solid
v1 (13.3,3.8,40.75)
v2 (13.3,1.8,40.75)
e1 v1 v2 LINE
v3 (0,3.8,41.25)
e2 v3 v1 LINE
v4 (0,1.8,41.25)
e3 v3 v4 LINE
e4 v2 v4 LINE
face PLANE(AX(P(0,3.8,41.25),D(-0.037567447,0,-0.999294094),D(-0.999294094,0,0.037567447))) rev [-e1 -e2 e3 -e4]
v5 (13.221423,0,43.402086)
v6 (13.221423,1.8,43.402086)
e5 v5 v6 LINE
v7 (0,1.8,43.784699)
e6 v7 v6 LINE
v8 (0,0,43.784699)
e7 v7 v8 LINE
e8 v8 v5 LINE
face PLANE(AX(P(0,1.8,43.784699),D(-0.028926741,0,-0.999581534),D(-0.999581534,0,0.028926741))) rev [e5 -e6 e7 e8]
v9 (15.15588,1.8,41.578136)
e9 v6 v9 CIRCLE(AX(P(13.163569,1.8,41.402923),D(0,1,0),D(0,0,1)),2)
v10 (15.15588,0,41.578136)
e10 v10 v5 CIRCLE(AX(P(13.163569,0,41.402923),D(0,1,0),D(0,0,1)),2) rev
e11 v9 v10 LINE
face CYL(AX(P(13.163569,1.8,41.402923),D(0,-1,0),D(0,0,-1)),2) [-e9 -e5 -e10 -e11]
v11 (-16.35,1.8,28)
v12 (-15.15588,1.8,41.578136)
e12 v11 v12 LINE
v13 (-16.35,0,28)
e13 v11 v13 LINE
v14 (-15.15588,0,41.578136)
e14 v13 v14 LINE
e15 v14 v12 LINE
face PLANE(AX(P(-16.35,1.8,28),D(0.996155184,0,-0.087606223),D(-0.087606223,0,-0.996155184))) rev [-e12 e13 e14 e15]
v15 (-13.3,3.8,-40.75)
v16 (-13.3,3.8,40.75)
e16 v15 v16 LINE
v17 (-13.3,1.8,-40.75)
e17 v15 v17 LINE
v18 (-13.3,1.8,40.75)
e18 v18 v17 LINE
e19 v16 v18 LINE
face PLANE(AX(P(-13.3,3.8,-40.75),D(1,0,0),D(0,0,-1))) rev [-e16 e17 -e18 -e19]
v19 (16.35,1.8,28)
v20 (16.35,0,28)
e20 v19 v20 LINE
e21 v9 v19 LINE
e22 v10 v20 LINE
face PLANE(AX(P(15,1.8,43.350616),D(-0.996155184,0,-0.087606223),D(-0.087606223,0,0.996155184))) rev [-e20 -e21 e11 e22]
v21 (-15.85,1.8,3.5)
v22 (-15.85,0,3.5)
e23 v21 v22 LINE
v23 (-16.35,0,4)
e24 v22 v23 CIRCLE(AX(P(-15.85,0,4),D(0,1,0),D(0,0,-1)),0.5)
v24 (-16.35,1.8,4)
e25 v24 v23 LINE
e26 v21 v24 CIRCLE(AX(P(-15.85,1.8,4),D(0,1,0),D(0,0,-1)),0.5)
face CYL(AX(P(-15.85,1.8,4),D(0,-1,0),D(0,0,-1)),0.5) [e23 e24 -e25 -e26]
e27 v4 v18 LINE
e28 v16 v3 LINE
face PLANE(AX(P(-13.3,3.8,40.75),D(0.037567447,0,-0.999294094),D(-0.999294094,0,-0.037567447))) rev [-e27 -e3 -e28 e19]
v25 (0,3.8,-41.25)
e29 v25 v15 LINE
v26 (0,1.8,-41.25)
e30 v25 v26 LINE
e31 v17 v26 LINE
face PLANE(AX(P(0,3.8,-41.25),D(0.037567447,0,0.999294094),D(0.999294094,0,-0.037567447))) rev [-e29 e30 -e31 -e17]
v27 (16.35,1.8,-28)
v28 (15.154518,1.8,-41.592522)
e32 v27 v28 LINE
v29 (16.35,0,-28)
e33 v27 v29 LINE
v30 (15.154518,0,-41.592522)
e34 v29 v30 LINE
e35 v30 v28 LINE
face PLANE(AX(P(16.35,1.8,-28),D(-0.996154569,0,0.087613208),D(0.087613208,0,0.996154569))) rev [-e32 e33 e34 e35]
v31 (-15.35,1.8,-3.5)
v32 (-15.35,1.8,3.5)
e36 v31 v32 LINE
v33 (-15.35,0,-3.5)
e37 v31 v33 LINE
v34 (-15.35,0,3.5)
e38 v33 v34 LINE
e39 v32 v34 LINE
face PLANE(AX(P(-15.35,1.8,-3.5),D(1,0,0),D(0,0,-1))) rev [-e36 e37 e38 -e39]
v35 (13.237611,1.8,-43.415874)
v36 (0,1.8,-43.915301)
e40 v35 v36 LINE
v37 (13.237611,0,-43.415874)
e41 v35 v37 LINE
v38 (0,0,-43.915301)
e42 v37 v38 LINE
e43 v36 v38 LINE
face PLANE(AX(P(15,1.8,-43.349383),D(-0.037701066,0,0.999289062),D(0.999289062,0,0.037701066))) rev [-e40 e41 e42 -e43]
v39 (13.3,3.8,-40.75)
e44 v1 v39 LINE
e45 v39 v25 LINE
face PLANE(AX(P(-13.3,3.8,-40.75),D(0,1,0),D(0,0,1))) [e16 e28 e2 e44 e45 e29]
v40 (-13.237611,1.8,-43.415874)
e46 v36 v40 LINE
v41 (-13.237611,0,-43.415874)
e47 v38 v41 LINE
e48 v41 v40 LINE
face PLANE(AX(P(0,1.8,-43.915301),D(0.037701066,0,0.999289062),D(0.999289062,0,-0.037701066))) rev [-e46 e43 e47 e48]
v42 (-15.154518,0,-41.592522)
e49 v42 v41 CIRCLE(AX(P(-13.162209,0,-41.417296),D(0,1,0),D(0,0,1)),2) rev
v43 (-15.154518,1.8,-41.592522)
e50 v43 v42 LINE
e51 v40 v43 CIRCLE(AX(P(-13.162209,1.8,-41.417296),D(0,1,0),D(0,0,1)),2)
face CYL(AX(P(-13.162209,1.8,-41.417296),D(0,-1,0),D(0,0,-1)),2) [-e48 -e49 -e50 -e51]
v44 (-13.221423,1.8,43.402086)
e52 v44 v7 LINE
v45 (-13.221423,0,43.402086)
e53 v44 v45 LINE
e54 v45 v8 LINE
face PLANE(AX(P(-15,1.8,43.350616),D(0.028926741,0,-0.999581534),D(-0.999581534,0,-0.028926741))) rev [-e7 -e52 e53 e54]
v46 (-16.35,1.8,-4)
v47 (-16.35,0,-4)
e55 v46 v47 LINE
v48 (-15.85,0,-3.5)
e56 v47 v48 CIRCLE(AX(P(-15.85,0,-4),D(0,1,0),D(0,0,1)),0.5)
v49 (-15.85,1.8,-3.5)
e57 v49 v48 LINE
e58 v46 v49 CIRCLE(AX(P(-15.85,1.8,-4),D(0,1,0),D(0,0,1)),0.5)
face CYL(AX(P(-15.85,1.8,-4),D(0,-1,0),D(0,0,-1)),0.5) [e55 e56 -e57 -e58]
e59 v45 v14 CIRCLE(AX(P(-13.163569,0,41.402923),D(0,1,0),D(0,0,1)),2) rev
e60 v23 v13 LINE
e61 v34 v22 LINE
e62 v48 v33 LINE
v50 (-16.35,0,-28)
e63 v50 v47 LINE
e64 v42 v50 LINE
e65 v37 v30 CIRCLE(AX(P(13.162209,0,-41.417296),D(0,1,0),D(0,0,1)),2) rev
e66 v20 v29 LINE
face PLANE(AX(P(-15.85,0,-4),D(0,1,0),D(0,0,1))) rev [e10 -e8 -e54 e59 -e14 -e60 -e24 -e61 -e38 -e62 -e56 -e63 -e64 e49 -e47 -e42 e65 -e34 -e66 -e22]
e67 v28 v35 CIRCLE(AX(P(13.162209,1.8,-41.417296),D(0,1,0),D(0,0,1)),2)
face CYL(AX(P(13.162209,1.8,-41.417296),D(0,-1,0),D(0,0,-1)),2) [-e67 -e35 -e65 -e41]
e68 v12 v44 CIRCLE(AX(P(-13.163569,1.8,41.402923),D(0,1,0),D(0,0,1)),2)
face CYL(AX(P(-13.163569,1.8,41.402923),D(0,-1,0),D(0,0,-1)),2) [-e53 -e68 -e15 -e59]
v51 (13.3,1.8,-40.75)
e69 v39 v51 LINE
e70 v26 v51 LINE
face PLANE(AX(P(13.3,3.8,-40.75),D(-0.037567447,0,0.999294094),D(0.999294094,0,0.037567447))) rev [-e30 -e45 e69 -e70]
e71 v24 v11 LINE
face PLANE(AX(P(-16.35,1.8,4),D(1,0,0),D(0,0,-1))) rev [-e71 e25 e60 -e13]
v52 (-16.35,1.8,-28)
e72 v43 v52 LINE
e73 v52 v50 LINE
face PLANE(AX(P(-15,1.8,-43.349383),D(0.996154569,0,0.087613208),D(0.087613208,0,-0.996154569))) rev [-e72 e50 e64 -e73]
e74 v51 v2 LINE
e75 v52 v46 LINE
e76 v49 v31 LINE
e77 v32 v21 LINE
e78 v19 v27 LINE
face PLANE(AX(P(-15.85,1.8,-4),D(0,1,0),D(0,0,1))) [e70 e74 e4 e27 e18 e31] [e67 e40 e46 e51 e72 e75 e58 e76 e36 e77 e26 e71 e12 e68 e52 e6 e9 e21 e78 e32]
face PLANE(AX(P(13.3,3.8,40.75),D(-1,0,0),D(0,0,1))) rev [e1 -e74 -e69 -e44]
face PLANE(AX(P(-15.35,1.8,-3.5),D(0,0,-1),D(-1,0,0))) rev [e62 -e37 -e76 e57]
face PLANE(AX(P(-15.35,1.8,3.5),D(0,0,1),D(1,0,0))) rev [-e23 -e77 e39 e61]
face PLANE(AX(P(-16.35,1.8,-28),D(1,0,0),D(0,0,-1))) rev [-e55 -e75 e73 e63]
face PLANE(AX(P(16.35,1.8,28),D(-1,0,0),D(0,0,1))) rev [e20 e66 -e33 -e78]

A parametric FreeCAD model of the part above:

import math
import FreeCAD as App
import Part
import Sketcher


def edges_at(feature, points):
    """Names of the edges that pass closest to the given points."""
    edges = feature.Shape.Edges
    near = lambda p: min(range(len(edges)), key=lambda i: edges[i].distToShape(Part.Vertex(*p))[0])
    return sorted({f"Edge{near(p) + 1}" for p in points})

doc = App.newDocument("Part")
body = doc.addObject("PartDesign::Body", "Body")

# Sketch on XZ plane
sketch1 = body.newObject("Sketcher::SketchObject", "Sketch")
sketch1.AttachmentSupport = (doc.getObject("XZ_Plane"), [""])
sketch1.MapMode = "FlatFace"
sketch1.addGeometry([
    Part.LineSegment(App.Vector(-15, -43.349383, 0), App.Vector(-16.35, -28, 0)),  # 0
    Part.LineSegment(App.Vector(-16.35, -28, 0), App.Vector(-16.35, -4, 0)),  # 1
    Part.ArcOfCircle(Part.Circle(App.Vector(-15.85, -4, 0), App.Vector(0, 0, 1), 0.5), math.radians(90), math.radians(180)),  # 2
    Part.LineSegment(App.Vector(-15.85, -3.5, 0), App.Vector(-15.35, -3.5, 0)),  # 3
    Part.LineSegment(App.Vector(-15.35, -3.5, 0), App.Vector(-15.35, 3.5, 0)),  # 4
    Part.LineSegment(App.Vector(-15.35, 3.5, 0), App.Vector(-15.85, 3.5, 0)),  # 5
    Part.ArcOfCircle(Part.Circle(App.Vector(-15.85, 4, 0), App.Vector(0, 0, 1), 0.5), math.radians(180), math.radians(270)),  # 6
    Part.LineSegment(App.Vector(-16.35, 4, 0), App.Vector(-16.35, 28, 0)),  # 7
    Part.LineSegment(App.Vector(-16.35, 28, 0), App.Vector(-15, 43.350616, 0)),  # 8
    Part.LineSegment(App.Vector(-15, 43.350616, 0), App.Vector(0, 43.784699, 0)),  # 9
    Part.LineSegment(App.Vector(0, 43.784699, 0), App.Vector(15, 43.350616, 0)),  # 10
    Part.LineSegment(App.Vector(15, 43.350616, 0), App.Vector(16.35, 28, 0)),  # 11
    Part.LineSegment(App.Vector(16.35, 28, 0), App.Vector(16.35, -28, 0)),  # 12
    Part.LineSegment(App.Vector(16.35, -28, 0), App.Vector(15, -43.349383, 0)),  # 13
    Part.LineSegment(App.Vector(15, -43.349383, 0), App.Vector(0, -43.915301, 0)),  # 14
    Part.LineSegment(App.Vector(0, -43.915301, 0), App.Vector(-15, -43.349383, 0)),  # 15
], False)
sketch1.addConstraint([
    Sketcher.Constraint("Coincident", 0, 2, 1, 1),
    Sketcher.Constraint("Tangent", 1, 2, 2, 2),
    Sketcher.Constraint("Tangent", 2, 1, 3, 1),
    Sketcher.Constraint("Coincident", 3, 2, 4, 1),
    Sketcher.Constraint("Coincident", 4, 2, 5, 1),
    Sketcher.Constraint("Tangent", 5, 2, 6, 2),
    Sketcher.Constraint("Tangent", 6, 1, 7, 1),
    Sketcher.Constraint("Coincident", 7, 2, 8, 1),
    Sketcher.Constraint("Coincident", 8, 2, 9, 1),
    Sketcher.Constraint("Coincident", 9, 2, 10, 1),
    Sketcher.Constraint("Coincident", 10, 2, 11, 1),
    Sketcher.Constraint("Coincident", 11, 2, 12, 1),
    Sketcher.Constraint("Coincident", 12, 2, 13, 1),
    Sketcher.Constraint("Coincident", 13, 2, 14, 1),
    Sketcher.Constraint("Coincident", 14, 2, 15, 1),
    Sketcher.Constraint("Coincident", 15, 2, 0, 1),
    Sketcher.Constraint("Vertical", 1),
    Sketcher.Constraint("Horizontal", 3),
    Sketcher.Constraint("Vertical", 4),
    Sketcher.Constraint("Horizontal", 5),
    Sketcher.Constraint("Vertical", 7),
    Sketcher.Constraint("Vertical", 12),
    Sketcher.Constraint("Equal", 2, 6),
    Sketcher.Constraint("Symmetric", 0, 2, 11, 2, -1, 1),
    Sketcher.Constraint("Symmetric", 7, 2, 12, 2, -1, 1),
    Sketcher.Constraint("Symmetric", 8, 2, 10, 2, -2),
    Sketcher.Constraint("Symmetric", 13, 2, 15, 2, -2),
    Sketcher.Constraint("PointOnObject", 9, 2, -2),
    Sketcher.Constraint("PointOnObject", 14, 2, -2),
    Sketcher.Constraint("Horizontal", 7, 2, 11, 2),
    Sketcher.Constraint("Vertical", 10, 2, 13, 2),
    Sketcher.Constraint("Equal", 1, 7),
    Sketcher.Constraint("Radius", 2, 0.5),
    Sketcher.Constraint("DistanceY", 1, 1, 1, 2, 24.0),
    Sketcher.Constraint("DistanceY", 4, 1, 4, 2, 7.0),
    Sketcher.Constraint("DistanceX", 3, 1, 3, 2, 0.5),
    Sketcher.Constraint("DistanceX", 8, 2, -1, 1, 15.0),
    Sketcher.Constraint("DistanceX", 7, 2, 11, 2, 32.7),
    Sketcher.Constraint("DistanceY", -1, 1, 9, 2, 43.784699),
    Sketcher.Constraint("DistanceY", 14, 2, -1, 1, 43.915301),
    Sketcher.Constraint("Distance", 9, 15.00628),
    Sketcher.Constraint("Distance", 14, 15.010672),
])
pad1 = body.newObject("PartDesign::Pad", "Pad")
pad1.Profile = sketch1
pad1.Length = 1.8
pad1.Reversed = True

# Sketch on XZ plane
sketch2 = body.newObject("Sketcher::SketchObject", "Sketch001")
sketch2.AttachmentSupport = (doc.getObject("XZ_Plane"), [""])
sketch2.MapMode = "FlatFace"
sketch2.addGeometry([
    Part.LineSegment(App.Vector(-13.3, -40.75, 0), App.Vector(-13.3, 40.75, 0)),  # 0
    Part.LineSegment(App.Vector(-13.3, 40.75, 0), App.Vector(0, 41.25, 0)),  # 1
    Part.LineSegment(App.Vector(0, 41.25, 0), App.Vector(13.3, 40.75, 0)),  # 2
    Part.LineSegment(App.Vector(13.3, 40.75, 0), App.Vector(13.3, -40.75, 0)),  # 3
    Part.LineSegment(App.Vector(13.3, -40.75, 0), App.Vector(0, -41.25, 0)),  # 4
    Part.LineSegment(App.Vector(0, -41.25, 0), App.Vector(-13.3, -40.75, 0)),  # 5
], False)
sketch2.addConstraint([
    Sketcher.Constraint("Coincident", 0, 2, 1, 1),
    Sketcher.Constraint("Coincident", 1, 2, 2, 1),
    Sketcher.Constraint("Coincident", 2, 2, 3, 1),
    Sketcher.Constraint("Coincident", 3, 2, 4, 1),
    Sketcher.Constraint("Coincident", 4, 2, 5, 1),
    Sketcher.Constraint("Coincident", 5, 2, 0, 1),
    Sketcher.Constraint("Vertical", 0),
    Sketcher.Constraint("Vertical", 3),
    Sketcher.Constraint("Symmetric", 0, 2, 3, 2, -1, 1),
    Sketcher.Constraint("Symmetric", 1, 2, 4, 2, -1, 1),
    Sketcher.Constraint("PointOnObject", 1, 2, -2),
    Sketcher.Constraint("Parallel", 2, 5),
    Sketcher.Constraint("Horizontal", 0, 2, 2, 2),
    Sketcher.Constraint("DistanceY", 0, 1, 0, 2, 81.5),
    Sketcher.Constraint("DistanceY", 3, 2, 1, 2, 82.0),
    Sketcher.Constraint("DistanceX", 0, 2, -1, 1, 13.3),
])
pad2 = body.newObject("PartDesign::Pad", "Pad001")
pad2.Profile = sketch2
pad2.Length = 3.8
pad2.Reversed = True
doc.recompute()

fillet = body.newObject("PartDesign::Fillet", "Fillet")
fillet.Base = (pad2, edges_at(pad2, [
    (-15, 0.9, -43.349),
    (15, 0.9, -43.349),
    (15, 0.9, 43.351),
    (-15, 0.9, 43.351),
]))
fillet.Radius = 2

doc.recompute()
